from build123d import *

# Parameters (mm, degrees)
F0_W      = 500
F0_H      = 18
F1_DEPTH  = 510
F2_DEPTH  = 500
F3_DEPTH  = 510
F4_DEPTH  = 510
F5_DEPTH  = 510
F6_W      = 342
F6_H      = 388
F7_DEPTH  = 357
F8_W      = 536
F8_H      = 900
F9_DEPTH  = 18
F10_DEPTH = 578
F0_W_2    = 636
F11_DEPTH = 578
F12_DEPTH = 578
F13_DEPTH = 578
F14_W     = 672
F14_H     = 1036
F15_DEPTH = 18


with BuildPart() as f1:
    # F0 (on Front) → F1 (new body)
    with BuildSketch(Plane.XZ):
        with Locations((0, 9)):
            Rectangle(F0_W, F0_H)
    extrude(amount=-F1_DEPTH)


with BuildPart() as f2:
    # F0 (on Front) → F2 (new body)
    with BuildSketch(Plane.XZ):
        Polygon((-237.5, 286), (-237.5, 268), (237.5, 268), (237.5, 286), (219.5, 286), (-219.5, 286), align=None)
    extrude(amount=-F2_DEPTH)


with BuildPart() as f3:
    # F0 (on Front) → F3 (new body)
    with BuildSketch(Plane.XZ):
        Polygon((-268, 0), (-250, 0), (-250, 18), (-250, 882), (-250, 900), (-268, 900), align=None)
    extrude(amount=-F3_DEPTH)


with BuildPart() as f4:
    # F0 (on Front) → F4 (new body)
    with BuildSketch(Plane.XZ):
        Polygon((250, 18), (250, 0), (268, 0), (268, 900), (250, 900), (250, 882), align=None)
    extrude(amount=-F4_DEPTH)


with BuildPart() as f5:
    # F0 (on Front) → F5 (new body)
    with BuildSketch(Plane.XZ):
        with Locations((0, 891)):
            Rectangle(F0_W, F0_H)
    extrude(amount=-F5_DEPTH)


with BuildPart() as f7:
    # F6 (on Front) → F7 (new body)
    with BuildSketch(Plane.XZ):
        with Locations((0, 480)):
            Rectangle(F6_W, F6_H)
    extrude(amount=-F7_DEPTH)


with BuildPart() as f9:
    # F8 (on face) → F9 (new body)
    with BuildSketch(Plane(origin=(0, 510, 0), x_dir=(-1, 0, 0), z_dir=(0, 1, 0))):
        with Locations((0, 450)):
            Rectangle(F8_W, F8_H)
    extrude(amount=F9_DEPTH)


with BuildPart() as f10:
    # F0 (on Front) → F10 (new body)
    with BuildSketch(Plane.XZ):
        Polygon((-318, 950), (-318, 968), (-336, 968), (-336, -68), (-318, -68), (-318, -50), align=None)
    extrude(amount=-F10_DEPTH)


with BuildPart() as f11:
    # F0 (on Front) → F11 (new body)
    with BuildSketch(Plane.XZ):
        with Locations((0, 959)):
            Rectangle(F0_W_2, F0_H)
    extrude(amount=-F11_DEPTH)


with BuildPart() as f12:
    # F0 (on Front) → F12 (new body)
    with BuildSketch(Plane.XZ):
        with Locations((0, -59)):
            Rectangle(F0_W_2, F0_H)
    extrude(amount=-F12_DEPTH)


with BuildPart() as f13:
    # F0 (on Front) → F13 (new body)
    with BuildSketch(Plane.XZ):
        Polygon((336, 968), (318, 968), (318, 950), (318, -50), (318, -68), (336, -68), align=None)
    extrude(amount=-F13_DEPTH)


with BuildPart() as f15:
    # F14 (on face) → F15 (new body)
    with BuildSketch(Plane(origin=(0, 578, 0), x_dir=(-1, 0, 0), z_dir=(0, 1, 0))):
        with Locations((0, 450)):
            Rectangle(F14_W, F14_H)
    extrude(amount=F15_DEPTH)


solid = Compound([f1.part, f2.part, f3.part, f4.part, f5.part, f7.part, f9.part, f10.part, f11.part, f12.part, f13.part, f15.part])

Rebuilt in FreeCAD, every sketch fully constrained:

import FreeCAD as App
import Part
import Sketcher
from FreeCAD import Vector

doc = App.newDocument("Part")
body = doc.addObject("PartDesign::Body", "Body")

# Sketch on XZ plane
sketch1 = doc.addObject("Sketcher::SketchObject", "Sketch")
body.addObject(sketch1)
sketch1.AttachmentSupport = (doc.XZ_Plane, [""])
sketch1.MapMode = "FlatFace"
sketch1.addGeometry([
    Part.LineSegment(Vector(-250, 18, 0), Vector(-250, 0, 0)),
    Part.LineSegment(Vector(-250, 0, 0), Vector(250, 0, 0)),
    Part.LineSegment(Vector(250, 0, 0), Vector(250, 18, 0)),
    Part.LineSegment(Vector(250, 18, 0), Vector(-250, 18, 0)),
], False)
sketch1.addConstraint([
    Sketcher.Constraint("Coincident", 0, 2, 1, 1),
    Sketcher.Constraint("Coincident", 1, 2, 2, 1),
    Sketcher.Constraint("Coincident", 2, 2, 3, 1),
    Sketcher.Constraint("Coincident", 3, 2, 0, 1),
    Sketcher.Constraint("Vertical", 0),
    Sketcher.Constraint("Horizontal", 1),
    Sketcher.Constraint("Vertical", 2),
    Sketcher.Constraint("Horizontal", 3),
    Sketcher.Constraint("Symmetric", 0, 2, 1, 2, -1, 1),
    Sketcher.Constraint("DistanceX", 1, 1, 1, 2, 500.0),
    Sketcher.Constraint("DistanceY", 0, 2, 0, 1, 18.0),
])
pad1 = doc.addObject("PartDesign::Pad", "Pad")
body.addObject(pad1)
pad1.Profile = sketch1
pad1.Length = 510
pad1.Reversed = True
body2 = doc.addObject("PartDesign::Body", "Body001")

# Sketch on XZ plane
sketch2 = doc.addObject("Sketcher::SketchObject", "Sketch001")
body2.addObject(sketch2)
sketch2.AttachmentSupport = (doc.getObject("XZ_Plane001"), [""])
sketch2.MapMode = "FlatFace"
sketch2.addGeometry([
    Part.LineSegment(Vector(-238, 286, 0), Vector(-238, 268, 0)),
    Part.LineSegment(Vector(-238, 268, 0), Vector(238, 268, 0)),
    Part.LineSegment(Vector(238, 268, 0), Vector(238, 286, 0)),
    Part.LineSegment(Vector(238, 286, 0), Vector(-238, 286, 0)),
], False)
sketch2.addConstraint([
    Sketcher.Constraint("Coincident", 0, 2, 1, 1),
    Sketcher.Constraint("Coincident", 1, 2, 2, 1),
    Sketcher.Constraint("Coincident", 2, 2, 3, 1),
    Sketcher.Constraint("Coincident", 3, 2, 0, 1),
    Sketcher.Constraint("Vertical", 0),
    Sketcher.Constraint("Horizontal", 1),
    Sketcher.Constraint("Vertical", 2),
    Sketcher.Constraint("Horizontal", 3),
    Sketcher.Constraint("DistanceX", 1, 1, 1, 2, 475.0),
    Sketcher.Constraint("DistanceY", 0, 2, 0, 1, 18.0),
    Sketcher.Constraint("DistanceY", -1, 1, 0, 2, 268.0),
    Sketcher.Constraint("DistanceX", 0, 2, -1, 1, 237.5),
])
pad2 = doc.addObject("PartDesign::Pad", "Pad001")
body2.addObject(pad2)
pad2.Profile = sketch2
pad2.Length = 500
pad2.Reversed = True
body3 = doc.addObject("PartDesign::Body", "Body002")

# Sketch on XZ plane
sketch3 = doc.addObject("Sketcher::SketchObject", "Sketch002")
body3.addObject(sketch3)
sketch3.AttachmentSupport = (doc.getObject("XZ_Plane002"), [""])
sketch3.MapMode = "FlatFace"
sketch3.addGeometry([
    Part.LineSegment(Vector(-268, 0, 0), Vector(-250, 0, 0)),
    Part.LineSegment(Vector(-250, 0, 0), Vector(-250, 900, 0)),
    Part.LineSegment(Vector(-250, 900, 0), Vector(-268, 900, 0)),
    Part.LineSegment(Vector(-268, 900, 0), Vector(-268, 0, 0)),
], False)
sketch3.addConstraint([
    Sketcher.Constraint("Coincident", 0, 2, 1, 1),
    Sketcher.Constraint("Coincident", 1, 2, 2, 1),
    Sketcher.Constraint("Coincident", 2, 2, 3, 1),
    Sketcher.Constraint("Coincident", 3, 2, 0, 1),
    Sketcher.Constraint("Horizontal", 0),
    Sketcher.Constraint("Vertical", 1),
    Sketcher.Constraint("Horizontal", 2),
    Sketcher.Constraint("Vertical", 3),
    Sketcher.Constraint("PointOnObject", 0, 2, -1),
    Sketcher.Constraint("DistanceX", 0, 1, 0, 2, 18.0),
    Sketcher.Constraint("DistanceY", 1, 1, 1, 2, 900.0),
    Sketcher.Constraint("DistanceX", 0, 2, -1, 1, 250.0),
])
pad3 = doc.addObject("PartDesign::Pad", "Pad002")
body3.addObject(pad3)
pad3.Profile = sketch3
pad3.Length = 510
pad3.Reversed = True
body4 = doc.addObject("PartDesign::Body", "Body003")

# Sketch on XZ plane
sketch4 = doc.addObject("Sketcher::SketchObject", "Sketch003")
body4.addObject(sketch4)
sketch4.AttachmentSupport = (doc.getObject("XZ_Plane003"), [""])
sketch4.MapMode = "FlatFace"
sketch4.addGeometry([
    Part.LineSegment(Vector(250, 0, 0), Vector(268, 0, 0)),
    Part.LineSegment(Vector(268, 0, 0), Vector(268, 900, 0)),
    Part.LineSegment(Vector(268, 900, 0), Vector(250, 900, 0)),
    Part.LineSegment(Vector(250, 900, 0), Vector(250, 0, 0)),
], False)
sketch4.addConstraint([
    Sketcher.Constraint("Coincident", 0, 2, 1, 1),
    Sketcher.Constraint("Coincident", 1, 2, 2, 1),
    Sketcher.Constraint("Coincident", 2, 2, 3, 1),
    Sketcher.Constraint("Coincident", 3, 2, 0, 1),
    Sketcher.Constraint("Horizontal", 0),
    Sketcher.Constraint("Vertical", 1),
    Sketcher.Constraint("Horizontal", 2),
    Sketcher.Constraint("Vertical", 3),
    Sketcher.Constraint("PointOnObject", 0, 2, -1),
    Sketcher.Constraint("DistanceX", 0, 1, 0, 2, 18.0),
    Sketcher.Constraint("DistanceY", 1, 1, 1, 2, 900.0),
    Sketcher.Constraint("DistanceX", -1, 1, 0, 2, 268.0),
])
pad4 = doc.addObject("PartDesign::Pad", "Pad003")
body4.addObject(pad4)
pad4.Profile = sketch4
pad4.Length = 510
pad4.Reversed = True
body5 = doc.addObject("PartDesign::Body", "Body004")

# Sketch on XZ plane
sketch5 = doc.addObject("Sketcher::SketchObject", "Sketch004")
body5.addObject(sketch5)
sketch5.AttachmentSupport = (doc.getObject("XZ_Plane004"), [""])
sketch5.MapMode = "FlatFace"
sketch5.addGeometry([
    Part.LineSegment(Vector(-250, 900, 0), Vector(-250, 882, 0)),
    Part.LineSegment(Vector(-250, 882, 0), Vector(250, 882, 0)),
    Part.LineSegment(Vector(250, 882, 0), Vector(250, 900, 0)),
    Part.LineSegment(Vector(250, 900, 0), Vector(-250, 900, 0)),
], False)
sketch5.addConstraint([
    Sketcher.Constraint("Coincident", 0, 2, 1, 1),
    Sketcher.Constraint("Coincident", 1, 2, 2, 1),
    Sketcher.Constraint("Coincident", 2, 2, 3, 1),
    Sketcher.Constraint("Coincident", 3, 2, 0, 1),
    Sketcher.Constraint("Vertical", 0),
    Sketcher.Constraint("Horizontal", 1),
    Sketcher.Constraint("Vertical", 2),
    Sketcher.Constraint("Horizontal", 3),
    Sketcher.Constraint("DistanceX", 1, 1, 1, 2, 500.0),
    Sketcher.Constraint("DistanceY", 0, 2, 0, 1, 18.0),
    Sketcher.Constraint("DistanceX", 0, 2, -1, 1, 250.0),
    Sketcher.Constraint("DistanceY", -1, 1, 0, 2, 882.0),
])
pad5 = doc.addObject("PartDesign::Pad", "Pad004")
body5.addObject(pad5)
pad5.Profile = sketch5
pad5.Length = 510
pad5.Reversed = True
body6 = doc.addObject("PartDesign::Body", "Body005")

# Sketch on XZ plane
sketch6 = doc.addObject("Sketcher::SketchObject", "Sketch005")
body6.addObject(sketch6)
sketch6.AttachmentSupport = (doc.getObject("XZ_Plane005"), [""])
sketch6.MapMode = "FlatFace"
sketch6.addGeometry([
    Part.LineSegment(Vector(-171, 674, 0), Vector(-171, 286, 0)),
    Part.LineSegment(Vector(-171, 286, 0), Vector(171, 286, 0)),
    Part.LineSegment(Vector(171, 286, 0), Vector(171, 674, 0)),
    Part.LineSegment(Vector(171, 674, 0), Vector(-171, 674, 0)),
], False)
sketch6.addConstraint([
    Sketcher.Constraint("Coincident", 0, 2, 1, 1),
    Sketcher.Constraint("Coincident", 1, 2, 2, 1),
    Sketcher.Constraint("Coincident", 2, 2, 3, 1),
    Sketcher.Constraint("Coincident", 3, 2, 0, 1),
    Sketcher.Constraint("Vertical", 0),
    Sketcher.Constraint("Horizontal", 1),
    Sketcher.Constraint("Vertical", 2),
    Sketcher.Constraint("Horizontal", 3),
    Sketcher.Constraint("DistanceX", 1, 1, 1, 2, 342.0),
    Sketcher.Constraint("DistanceY", 0, 2, 0, 1, 388.0),
    Sketcher.Constraint("DistanceX", 0, 2, -1, 1, 171.0),
    Sketcher.Constraint("DistanceY", -1, 1, 0, 2, 286.0),
])
pad6 = doc.addObject("PartDesign::Pad", "Pad005")
body6.addObject(pad6)
pad6.Profile = sketch6
pad6.Length = 357
pad6.Reversed = True
body7 = doc.addObject("PartDesign::Body", "Body006")

# Sketch on XZ plane
sketch7 = doc.addObject("Sketcher::SketchObject", "Sketch006")
body7.addObject(sketch7)
sketch7.AttachmentSupport = (doc.getObject("XZ_Plane006"), [""])
sketch7.MapMode = "FlatFace"
sketch7.AttachmentOffset = App.Placement(Vector(0, 0, -510), App.Rotation())
sketch7.addGeometry([
    Part.LineSegment(Vector(268, 900, 0), Vector(268, 0, 0)),
    Part.LineSegment(Vector(268, 0, 0), Vector(-268, 0, 0)),
    Part.LineSegment(Vector(-268, 0, 0), Vector(-268, 900, 0)),
    Part.LineSegment(Vector(-268, 900, 0), Vector(268, 900, 0)),
], False)
sketch7.addConstraint([
    Sketcher.Constraint("Coincident", 0, 2, 1, 1),
    Sketcher.Constraint("Coincident", 1, 2, 2, 1),
    Sketcher.Constraint("Coincident", 2, 2, 3, 1),
    Sketcher.Constraint("Coincident", 3, 2, 0, 1),
    Sketcher.Constraint("Vertical", 0),
    Sketcher.Constraint("Horizontal", 1),
    Sketcher.Constraint("Vertical", 2),
    Sketcher.Constraint("Horizontal", 3),
    Sketcher.Constraint("Symmetric", 0, 2, 1, 2, -1, 1),
    Sketcher.Constraint("DistanceX", 1, 2, 1, 1, 536.0),
    Sketcher.Constraint("DistanceY", 0, 2, 0, 1, 900.0),
])
pad7 = doc.addObject("PartDesign::Pad", "Pad006")
body7.addObject(pad7)
pad7.Profile = sketch7
pad7.Length = 18
pad7.Reversed = True
body8 = doc.addObject("PartDesign::Body", "Body007")

# Sketch on XZ plane
sketch8 = doc.addObject("Sketcher::SketchObject", "Sketch007")
body8.addObject(sketch8)
sketch8.AttachmentSupport = (doc.getObject("XZ_Plane007"), [""])
sketch8.MapMode = "FlatFace"
sketch8.addGeometry([
    Part.LineSegment(Vector(-318, 968, 0), Vector(-336, 968, 0)),
    Part.LineSegment(Vector(-336, 968, 0), Vector(-336, -68, 0)),
    Part.LineSegment(Vector(-336, -68, 0), Vector(-318, -68, 0)),
    Part.LineSegment(Vector(-318, -68, 0), Vector(-318, 968, 0)),
], False)
sketch8.addConstraint([
    Sketcher.Constraint("Coincident", 0, 2, 1, 1),
    Sketcher.Constraint("Coincident", 1, 2, 2, 1),
    Sketcher.Constraint("Coincident", 2, 2, 3, 1),
    Sketcher.Constraint("Coincident", 3, 2, 0, 1),
    Sketcher.Constraint("Horizontal", 0),
    Sketcher.Constraint("Vertical", 1),
    Sketcher.Constraint("Horizontal", 2),
    Sketcher.Constraint("Vertical", 3),
    Sketcher.Constraint("DistanceX", 0, 2, 0, 1, 18.0),
    Sketcher.Constraint("DistanceY", 1, 2, 1, 1, 1036.0),
    Sketcher.Constraint("DistanceX", 0, 2, -1, 1, 336.0),
    Sketcher.Constraint("DistanceY", -1, 1, 0, 2, 968.0),
])
pad8 = doc.addObject("PartDesign::Pad", "Pad007")
body8.addObject(pad8)
pad8.Profile = sketch8
pad8.Length = 578
pad8.Reversed = True
body9 = doc.addObject("PartDesign::Body", "Body008")

# Sketch on XZ plane
sketch9 = doc.addObject("Sketcher::SketchObject", "Sketch008")
body9.addObject(sketch9)
sketch9.AttachmentSupport = (doc.getObject("XZ_Plane008"), [""])
sketch9.MapMode = "FlatFace"
sketch9.addGeometry([
    Part.LineSegment(Vector(-318, 968, 0), Vector(-318, 950, 0)),
    Part.LineSegment(Vector(-318, 950, 0), Vector(318, 950, 0)),
    Part.LineSegment(Vector(318, 950, 0), Vector(318, 968, 0)),
    Part.LineSegment(Vector(318, 968, 0), Vector(-318, 968, 0)),
], False)
sketch9.addConstraint([
    Sketcher.Constraint("Coincident", 0, 2, 1, 1),
    Sketcher.Constraint("Coincident", 1, 2, 2, 1),
    Sketcher.Constraint("Coincident", 2, 2, 3, 1),
    Sketcher.Constraint("Coincident", 3, 2, 0, 1),
    Sketcher.Constraint("Vertical", 0),
    Sketcher.Constraint("Horizontal", 1),
    Sketcher.Constraint("Vertical", 2),
    Sketcher.Constraint("Horizontal", 3),
    Sketcher.Constraint("DistanceX", 1, 1, 1, 2, 636.0),
    Sketcher.Constraint("DistanceY", 0, 2, 0, 1, 18.0),
    Sketcher.Constraint("DistanceX", 0, 2, -1, 1, 318.0),
    Sketcher.Constraint("DistanceY", -1, 1, 0, 2, 950.0),
])
pad9 = doc.addObject("PartDesign::Pad", "Pad008")
body9.addObject(pad9)
pad9.Profile = sketch9
pad9.Length = 578
pad9.Reversed = True
body10 = doc.addObject("PartDesign::Body", "Body009")

# Sketch on XZ plane
sketch10 = doc.addObject("Sketcher::SketchObject", "Sketch009")
body10.addObject(sketch10)
sketch10.AttachmentSupport = (doc.getObject("XZ_Plane009"), [""])
sketch10.MapMode = "FlatFace"
sketch10.addGeometry([
    Part.LineSegment(Vector(-318, -50, 0), Vector(-318, -68, 0)),
    Part.LineSegment(Vector(-318, -68, 0), Vector(318, -68, 0)),
    Part.LineSegment(Vector(318, -68, 0), Vector(318, -50, 0)),
    Part.LineSegment(Vector(318, -50, 0), Vector(-318, -50, 0)),
], False)
sketch10.addConstraint([
    Sketcher.Constraint("Coincident", 0, 2, 1, 1),
    Sketcher.Constraint("Coincident", 1, 2, 2, 1),
    Sketcher.Constraint("Coincident", 2, 2, 3, 1),
    Sketcher.Constraint("Coincident", 3, 2, 0, 1),
    Sketcher.Constraint("Vertical", 0),
    Sketcher.Constraint("Horizontal", 1),
    Sketcher.Constraint("Vertical", 2),
    Sketcher.Constraint("Horizontal", 3),
    Sketcher.Constraint("DistanceX", 1, 1, 1, 2, 636.0),
    Sketcher.Constraint("DistanceY", 0, 2, 0, 1, 18.0),
    Sketcher.Constraint("DistanceX", 0, 2, -1, 1, 318.0),
    Sketcher.Constraint("DistanceY", 0, 2, -1, 1, 68.0),
])
pad10 = doc.addObject("PartDesign::Pad", "Pad009")
body10.addObject(pad10)
pad10.Profile = sketch10
pad10.Length = 578
pad10.Reversed = True
body11 = doc.addObject("PartDesign::Body", "Body010")

# Sketch on XZ plane
sketch11 = doc.addObject("Sketcher::SketchObject", "Sketch010")
body11.addObject(sketch11)
sketch11.AttachmentSupport = (doc.getObject("XZ_Plane010"), [""])
sketch11.MapMode = "FlatFace"
sketch11.addGeometry([
    Part.LineSegment(Vector(336, 968, 0), Vector(318, 968, 0)),
    Part.LineSegment(Vector(318, 968, 0), Vector(318, -68, 0)),
    Part.LineSegment(Vector(318, -68, 0), Vector(336, -68, 0)),
    Part.LineSegment(Vector(336, -68, 0), Vector(336, 968, 0)),
], False)
sketch11.addConstraint([
    Sketcher.Constraint("Coincident", 0, 2, 1, 1),
    Sketcher.Constraint("Coincident", 1, 2, 2, 1),
    Sketcher.Constraint("Coincident", 2, 2, 3, 1),
    Sketcher.Constraint("Coincident", 3, 2, 0, 1),
    Sketcher.Constraint("Horizontal", 0),
    Sketcher.Constraint("Vertical", 1),
    Sketcher.Constraint("Horizontal", 2),
    Sketcher.Constraint("Vertical", 3),
    Sketcher.Constraint("DistanceX", 0, 2, 0, 1, 18.0),
    Sketcher.Constraint("DistanceY", 1, 2, 1, 1, 1036.0),
    Sketcher.Constraint("DistanceX", -1, 1, 0, 2, 318.0),
    Sketcher.Constraint("DistanceY", -1, 1, 0, 2, 968.0),
])
pad11 = doc.addObject("PartDesign::Pad", "Pad010")
body11.addObject(pad11)
pad11.Profile = sketch11
pad11.Length = 578
pad11.Reversed = True
body12 = doc.addObject("PartDesign::Body", "Body011")

# Sketch on XZ plane
sketch12 = doc.addObject("Sketcher::SketchObject", "Sketch011")
body12.addObject(sketch12)
sketch12.AttachmentSupport = (doc.getObject("XZ_Plane011"), [""])
sketch12.MapMode = "FlatFace"
sketch12.AttachmentOffset = App.Placement(Vector(0, 0, -578), App.Rotation())
sketch12.addGeometry([
    Part.LineSegment(Vector(336, 968, 0), Vector(336, -68, 0)),
    Part.LineSegment(Vector(336, -68, 0), Vector(-336, -68, 0)),
    Part.LineSegment(Vector(-336, -68, 0), Vector(-336, 968, 0)),
    Part.LineSegment(Vector(-336, 968, 0), Vector(336, 968, 0)),
], False)
sketch12.addConstraint([
    Sketcher.Constraint("Coincident", 0, 2, 1, 1),
    Sketcher.Constraint("Coincident", 1, 2, 2, 1),
    Sketcher.Constraint("Coincident", 2, 2, 3, 1),
    Sketcher.Constraint("Coincident", 3, 2, 0, 1),
    Sketcher.Constraint("Vertical", 0),
    Sketcher.Constraint("Horizontal", 1),
    Sketcher.Constraint("Vertical", 2),
    Sketcher.Constraint("Horizontal", 3),
    Sketcher.Constraint("DistanceX", 1, 2, 1, 1, 672.0),
    Sketcher.Constraint("DistanceY", 0, 2, 0, 1, 1036.0),
    Sketcher.Constraint("DistanceX", -1, 1, 0, 2, 336.0),
    Sketcher.Constraint("DistanceY", 0, 2, -1, 1, 68.0),
])
pad12 = doc.addObject("PartDesign::Pad", "Pad011")
body12.addObject(pad12)
pad12.Profile = sketch12
pad12.Length = 18
pad12.Reversed = True

doc.recompute()
